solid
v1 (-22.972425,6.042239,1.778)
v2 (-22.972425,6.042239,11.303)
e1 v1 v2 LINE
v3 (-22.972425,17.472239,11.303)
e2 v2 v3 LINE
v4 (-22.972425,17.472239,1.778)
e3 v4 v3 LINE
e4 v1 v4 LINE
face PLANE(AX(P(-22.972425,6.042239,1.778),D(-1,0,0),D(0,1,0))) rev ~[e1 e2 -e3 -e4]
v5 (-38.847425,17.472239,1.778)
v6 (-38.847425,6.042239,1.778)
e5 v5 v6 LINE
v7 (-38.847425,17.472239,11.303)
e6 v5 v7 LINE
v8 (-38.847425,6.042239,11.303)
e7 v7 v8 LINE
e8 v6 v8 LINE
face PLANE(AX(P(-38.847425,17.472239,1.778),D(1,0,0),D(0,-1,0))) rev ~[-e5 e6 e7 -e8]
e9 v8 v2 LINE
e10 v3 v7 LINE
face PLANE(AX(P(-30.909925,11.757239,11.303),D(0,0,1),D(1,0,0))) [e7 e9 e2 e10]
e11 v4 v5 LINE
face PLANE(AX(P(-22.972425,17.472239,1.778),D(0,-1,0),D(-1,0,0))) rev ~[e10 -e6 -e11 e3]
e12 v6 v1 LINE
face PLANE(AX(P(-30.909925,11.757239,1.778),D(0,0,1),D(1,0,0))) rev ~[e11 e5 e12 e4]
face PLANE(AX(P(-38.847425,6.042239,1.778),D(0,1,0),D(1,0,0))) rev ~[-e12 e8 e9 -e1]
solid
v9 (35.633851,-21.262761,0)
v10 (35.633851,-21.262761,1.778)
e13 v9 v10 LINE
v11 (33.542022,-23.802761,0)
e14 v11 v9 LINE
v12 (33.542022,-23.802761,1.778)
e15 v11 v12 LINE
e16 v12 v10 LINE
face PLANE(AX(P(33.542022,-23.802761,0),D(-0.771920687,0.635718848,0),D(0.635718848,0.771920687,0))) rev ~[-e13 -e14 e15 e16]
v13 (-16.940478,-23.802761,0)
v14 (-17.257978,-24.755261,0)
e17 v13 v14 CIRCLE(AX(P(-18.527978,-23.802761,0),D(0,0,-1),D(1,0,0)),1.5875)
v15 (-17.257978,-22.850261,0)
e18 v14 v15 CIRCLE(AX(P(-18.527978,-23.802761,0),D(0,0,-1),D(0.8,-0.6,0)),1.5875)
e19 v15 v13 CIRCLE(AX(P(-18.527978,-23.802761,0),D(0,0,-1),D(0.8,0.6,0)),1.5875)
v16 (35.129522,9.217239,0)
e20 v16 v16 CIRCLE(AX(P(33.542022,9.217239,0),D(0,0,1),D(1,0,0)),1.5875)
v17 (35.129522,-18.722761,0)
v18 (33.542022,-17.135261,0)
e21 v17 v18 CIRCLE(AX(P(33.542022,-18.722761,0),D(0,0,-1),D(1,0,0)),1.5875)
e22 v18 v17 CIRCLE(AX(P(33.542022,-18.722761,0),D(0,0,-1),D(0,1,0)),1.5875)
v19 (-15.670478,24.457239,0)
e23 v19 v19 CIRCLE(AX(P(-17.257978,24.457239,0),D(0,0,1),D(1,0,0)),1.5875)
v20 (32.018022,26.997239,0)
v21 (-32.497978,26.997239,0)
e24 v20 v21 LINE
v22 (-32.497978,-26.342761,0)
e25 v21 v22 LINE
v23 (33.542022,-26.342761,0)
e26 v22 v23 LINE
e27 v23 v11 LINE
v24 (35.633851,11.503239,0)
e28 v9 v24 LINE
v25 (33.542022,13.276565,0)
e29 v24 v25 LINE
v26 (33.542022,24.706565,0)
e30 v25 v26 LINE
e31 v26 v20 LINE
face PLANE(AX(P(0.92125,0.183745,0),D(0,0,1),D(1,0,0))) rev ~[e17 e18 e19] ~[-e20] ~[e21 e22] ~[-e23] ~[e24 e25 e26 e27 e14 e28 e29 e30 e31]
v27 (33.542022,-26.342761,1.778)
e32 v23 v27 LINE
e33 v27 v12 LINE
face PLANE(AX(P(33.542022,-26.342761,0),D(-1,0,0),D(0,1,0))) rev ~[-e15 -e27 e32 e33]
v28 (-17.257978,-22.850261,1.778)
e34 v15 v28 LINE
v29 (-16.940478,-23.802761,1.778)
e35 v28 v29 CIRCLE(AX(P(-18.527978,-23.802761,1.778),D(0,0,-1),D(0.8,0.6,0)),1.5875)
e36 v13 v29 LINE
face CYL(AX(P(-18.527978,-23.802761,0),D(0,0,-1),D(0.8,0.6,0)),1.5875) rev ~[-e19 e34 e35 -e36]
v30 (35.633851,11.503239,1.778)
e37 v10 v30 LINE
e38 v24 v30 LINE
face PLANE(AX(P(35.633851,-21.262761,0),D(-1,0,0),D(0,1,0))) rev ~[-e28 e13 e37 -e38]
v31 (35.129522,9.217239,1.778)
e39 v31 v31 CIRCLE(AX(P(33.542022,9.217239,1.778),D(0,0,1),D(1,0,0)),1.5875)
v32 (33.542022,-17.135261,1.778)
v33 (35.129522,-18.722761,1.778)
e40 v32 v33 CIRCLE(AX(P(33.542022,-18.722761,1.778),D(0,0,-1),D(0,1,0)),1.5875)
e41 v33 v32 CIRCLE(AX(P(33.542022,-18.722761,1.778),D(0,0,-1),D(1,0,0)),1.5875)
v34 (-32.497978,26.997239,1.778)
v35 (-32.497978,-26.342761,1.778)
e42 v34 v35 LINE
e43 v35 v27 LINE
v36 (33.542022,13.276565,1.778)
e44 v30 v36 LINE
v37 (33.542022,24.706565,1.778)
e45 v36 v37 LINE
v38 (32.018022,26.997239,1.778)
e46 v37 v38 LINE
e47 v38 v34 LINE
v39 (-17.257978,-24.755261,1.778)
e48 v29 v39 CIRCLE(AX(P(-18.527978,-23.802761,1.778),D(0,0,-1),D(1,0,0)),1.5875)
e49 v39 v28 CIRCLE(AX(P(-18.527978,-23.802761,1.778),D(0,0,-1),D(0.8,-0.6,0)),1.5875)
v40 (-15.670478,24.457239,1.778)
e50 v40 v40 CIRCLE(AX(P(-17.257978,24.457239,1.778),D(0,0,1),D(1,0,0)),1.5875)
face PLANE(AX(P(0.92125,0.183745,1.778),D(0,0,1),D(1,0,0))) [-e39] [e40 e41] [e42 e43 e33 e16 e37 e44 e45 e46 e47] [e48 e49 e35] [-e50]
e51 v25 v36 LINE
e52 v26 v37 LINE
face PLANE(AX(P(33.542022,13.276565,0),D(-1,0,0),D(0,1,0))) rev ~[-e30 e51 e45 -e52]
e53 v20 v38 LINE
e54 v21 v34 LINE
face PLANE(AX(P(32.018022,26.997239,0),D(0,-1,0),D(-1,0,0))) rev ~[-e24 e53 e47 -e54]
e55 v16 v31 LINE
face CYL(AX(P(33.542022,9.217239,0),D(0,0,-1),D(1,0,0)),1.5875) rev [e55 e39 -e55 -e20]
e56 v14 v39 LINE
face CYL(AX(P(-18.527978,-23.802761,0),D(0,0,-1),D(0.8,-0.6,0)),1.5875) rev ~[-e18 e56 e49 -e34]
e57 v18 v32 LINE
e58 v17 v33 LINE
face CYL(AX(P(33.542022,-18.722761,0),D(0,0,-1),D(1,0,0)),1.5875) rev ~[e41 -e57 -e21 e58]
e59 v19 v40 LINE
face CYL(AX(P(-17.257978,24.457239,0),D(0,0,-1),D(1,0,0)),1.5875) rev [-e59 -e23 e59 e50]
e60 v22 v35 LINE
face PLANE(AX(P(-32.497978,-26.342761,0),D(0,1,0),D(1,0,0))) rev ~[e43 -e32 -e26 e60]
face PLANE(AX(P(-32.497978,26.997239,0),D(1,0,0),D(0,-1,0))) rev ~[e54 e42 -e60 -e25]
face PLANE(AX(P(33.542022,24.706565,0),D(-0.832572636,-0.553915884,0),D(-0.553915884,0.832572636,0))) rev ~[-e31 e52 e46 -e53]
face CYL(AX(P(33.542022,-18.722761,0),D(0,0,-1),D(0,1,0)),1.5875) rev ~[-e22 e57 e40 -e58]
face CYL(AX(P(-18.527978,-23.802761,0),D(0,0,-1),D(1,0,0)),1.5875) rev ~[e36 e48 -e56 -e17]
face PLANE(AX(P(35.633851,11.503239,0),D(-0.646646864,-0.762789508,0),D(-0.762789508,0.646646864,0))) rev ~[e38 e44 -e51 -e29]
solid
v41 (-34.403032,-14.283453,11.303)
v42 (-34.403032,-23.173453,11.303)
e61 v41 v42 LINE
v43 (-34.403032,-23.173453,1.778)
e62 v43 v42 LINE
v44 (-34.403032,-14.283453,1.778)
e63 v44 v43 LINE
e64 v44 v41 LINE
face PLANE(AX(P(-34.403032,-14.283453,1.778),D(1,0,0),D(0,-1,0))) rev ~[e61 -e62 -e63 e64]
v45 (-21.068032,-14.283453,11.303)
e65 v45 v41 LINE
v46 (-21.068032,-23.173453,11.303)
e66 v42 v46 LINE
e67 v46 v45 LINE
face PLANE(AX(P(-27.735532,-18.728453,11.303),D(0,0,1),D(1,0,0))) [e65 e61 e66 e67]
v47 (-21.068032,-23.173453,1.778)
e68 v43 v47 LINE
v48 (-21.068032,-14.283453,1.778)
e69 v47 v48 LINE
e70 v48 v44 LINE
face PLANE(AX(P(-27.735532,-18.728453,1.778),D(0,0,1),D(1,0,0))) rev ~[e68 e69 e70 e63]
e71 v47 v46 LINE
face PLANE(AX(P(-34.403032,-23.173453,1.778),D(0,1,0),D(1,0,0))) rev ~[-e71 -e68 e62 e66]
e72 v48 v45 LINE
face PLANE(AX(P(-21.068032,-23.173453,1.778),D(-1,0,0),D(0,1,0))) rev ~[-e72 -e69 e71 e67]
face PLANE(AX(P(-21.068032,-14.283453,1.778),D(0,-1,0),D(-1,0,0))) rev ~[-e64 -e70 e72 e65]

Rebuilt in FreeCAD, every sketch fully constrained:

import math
import FreeCAD as App
import Part
import Sketcher

V = App.Vector
Q = App.Units.Quantity

doc = App.newDocument("Part")
body = doc.addObject("PartDesign::Body", "Body")

sketch1 = body.newObject("Sketcher::SketchObject", "Sketch")
sketch1.AttachmentSupport = (doc.getObject("XY_Plane"), [""])
sketch1.MapMode = "FlatFace"
sketch1.addGeometry([
    Part.LineSegment(V(32, 27, 0), V(-32.5, 27, 0)),
    Part.LineSegment(V(-32.5, 27, 0), V(-32.5, -26.3, 0)),
    Part.LineSegment(V(-32.5, -26.3, 0), V(33.5, -26.3, 0)),
    Part.LineSegment(V(33.5, -26.3, 0), V(33.5, -23.8, 0)),
    Part.LineSegment(V(33.5, -23.8, 0), V(35.6, -21.3, 0)),
    Part.LineSegment(V(35.6, -21.3, 0), V(35.6, 11.5, 0)),
    Part.LineSegment(V(35.6, 11.5, 0), V(33.5, 13.3, 0)),
    Part.LineSegment(V(33.5, 13.3, 0), V(33.5, 24.7, 0)),
    Part.LineSegment(V(33.5, 24.7, 0), V(32, 27, 0)),
    Part.ArcOfCircle(Part.Circle(V(-18.5, -23.8, 0), V(0, 0, 1), 1.6), math.radians(0), math.radians(37)),
    Part.ArcOfCircle(Part.Circle(V(-18.5, -23.8, 0), V(0, 0, 1), 1.6), math.radians(-37), math.radians(0)),
    Part.ArcOfCircle(Part.Circle(V(-18.5, -23.8, 0), V(0, 0, 1), 1.6), math.radians(37), math.radians(323)),
    Part.ArcOfCircle(Part.Circle(V(33.5, -18.7, 0), V(0, 0, 1), 1.6), math.radians(90), math.radians(360)),
    Part.ArcOfCircle(Part.Circle(V(33.5, -18.7, 0), V(0, 0, 1), 1.6), math.radians(0), math.radians(90)),
    Part.Circle(V(-17.3, 24.5, 0), V(0, 0, 1), 1.6),
    Part.Circle(V(33.5, 9.2, 0), V(0, 0, 1), 1.6),
], False)
sketch1.addConstraint([
    Sketcher.Constraint("Coincident", 0, 2, 1, 1),
    Sketcher.Constraint("Coincident", 1, 2, 2, 1),
    Sketcher.Constraint("Coincident", 2, 2, 3, 1),
    Sketcher.Constraint("Coincident", 3, 2, 4, 1),
    Sketcher.Constraint("Coincident", 4, 2, 5, 1),
    Sketcher.Constraint("Coincident", 5, 2, 6, 1),
    Sketcher.Constraint("Coincident", 6, 2, 7, 1),
    Sketcher.Constraint("Coincident", 7, 2, 8, 1),
    Sketcher.Constraint("Coincident", 8, 2, 0, 1),
    Sketcher.Constraint("Tangent", 9, 1, 10, 2),
    Sketcher.Constraint("Tangent", 10, 1, 11, 2),
    Sketcher.Constraint("Tangent", 11, 1, 9, 2),
    Sketcher.Constraint("Tangent", 12, 1, 13, 2),
    Sketcher.Constraint("Coincident", 13, 1, 12, 2),
    Sketcher.Constraint("Horizontal", 0),
    Sketcher.Constraint("Vertical", 1),
    Sketcher.Constraint("Horizontal", 2),
    Sketcher.Constraint("Vertical", 3),
    Sketcher.Constraint("Vertical", 5),
    Sketcher.Constraint("Vertical", 7),
    Sketcher.Constraint("Equal", 11, 12),
    Sketcher.Constraint("Equal", 13, 14),
    Sketcher.Constraint("Equal", 14, 15),
    Sketcher.Constraint("Horizontal", 11, 3, 3, 2),
    Sketcher.Constraint("Horizontal", 3, 2, 9, 1),
    Sketcher.Constraint("Horizontal", 12, 3, 13, 1),
    Sketcher.Constraint("Vertical", 13, 3, 15, 3),
    Sketcher.Constraint("Vertical", 15, 3, 2, 2),
    Sketcher.Constraint("Vertical", 3, 2, 6, 2),
    Sketcher.Constraint("Vertical", 14, 3, 10, 1),
    Sketcher.Constraint("Vertical", 10, 1, 11, 1),
    Sketcher.Constraint("Vertical", 7, 2, 12, 1),
    Sketcher.Constraint("Diameter", 14, Q("0.125 in")),
    Sketcher.Constraint("DistanceX", 2, 1, 2, 2, Q("2.6 in")),
    Sketcher.Constraint("DistanceY", 1, 2, 1, 1, Q("2.1 in")),
    Sketcher.Constraint("DistanceY", 3, 1, 3, 2, Q("0.1 in")),
    Sketcher.Constraint("DistanceX", 14, 3, 12, 3, Q("2 in")),
    Sketcher.Constraint("DistanceY", 1, 2, 14, 3, Q("2 in")),
    Sketcher.Constraint("DistanceX", 0, 2, 0, 1, Q("2.54 in")),
    Sketcher.Constraint("DistanceY", 5, 1, 5, 2, Q("1.29 in")),
    Sketcher.Constraint("DistanceY", 7, 1, 7, 2, Q("0.45 in")),
    Sketcher.Constraint("DistanceY", 9, 3, 12, 3, Q("0.2 in")),
    Sketcher.Constraint("DistanceY", 12, 3, 15, 3, Q("1.1 in")),
    Sketcher.Constraint("DistanceY", 4, 2, 12, 3, Q("0.1 in")),
    Sketcher.Constraint("DistanceX", 9, 3, 12, 3, Q("2.05 in")),
    Sketcher.Constraint("Distance", 6, Q("2.742341 mm")),
    Sketcher.Constraint("Distance", 8, Q("2.75132 mm")),
    Sketcher.Constraint("DistanceY", 9, 3, -1, 1, Q("23.802761 mm")),
    Sketcher.Constraint("DistanceX", -1, 1, 4, 2, Q("35.633851 mm")),
])
pad1 = body.newObject("PartDesign::Pad", "Pad")
pad1.Profile = sketch1
pad1.Length = Q("0.07 in")
body2 = doc.addObject("PartDesign::Body", "Body001")

sketch2 = body2.newObject("Sketcher::SketchObject", "Sketch001")
sketch2.AttachmentSupport = (doc.getObject("XY_Plane001"), [""])
sketch2.MapMode = "FlatFace"
sketch2.AttachmentOffset = App.Placement(V(0, 0, 0.07 * 25.4), App.Rotation())
sketch2.addGeometry([
    Part.LineSegment(V(-39, 6, 0), V(-23, 6, 0)),
    Part.LineSegment(V(-23, 6, 0), V(-23, 17, 0)),
    Part.LineSegment(V(-23, 17, 0), V(-39, 17, 0)),
    Part.LineSegment(V(-39, 17, 0), V(-39, 6, 0)),
], False)
sketch2.addConstraint([
    Sketcher.Constraint("Coincident", 0, 2, 1, 1),
    Sketcher.Constraint("Coincident", 1, 2, 2, 1),
    Sketcher.Constraint("Coincident", 2, 2, 3, 1),
    Sketcher.Constraint("Coincident", 3, 2, 0, 1),
    Sketcher.Constraint("Horizontal", 0),
    Sketcher.Constraint("Vertical", 1),
    Sketcher.Constraint("Horizontal", 2),
    Sketcher.Constraint("Vertical", 3),
    Sketcher.Constraint("DistanceY", 1, 1, 1, 2, Q("0.45 in")),
    Sketcher.Constraint("DistanceX", 0, 1, 0, 2, Q("0.625 in")),
    Sketcher.Constraint("DistanceY", -1, 1, 0, 2, Q("6.042239 mm")),
    Sketcher.Constraint("DistanceX", 0, 2, -1, 1, Q("22.972425 mm")),
])
pad2 = body2.newObject("PartDesign::Pad", "Pad001")
pad2.Profile = sketch2
pad2.Length = Q("0.375 in")
body3 = doc.addObject("PartDesign::Body", "Body002")

sketch3 = body3.newObject("Sketcher::SketchObject", "Sketch002")
sketch3.AttachmentSupport = (doc.getObject("XY_Plane002"), [""])
sketch3.MapMode = "FlatFace"
sketch3.AttachmentOffset = App.Placement(V(0, 0, 0.07 * 25.4), App.Rotation())
sketch3.addGeometry([
    Part.LineSegment(V(-34, -23, 0), V(-21, -23, 0)),
    Part.LineSegment(V(-21, -23, 0), V(-21, -14, 0)),
    Part.LineSegment(V(-21, -14, 0), V(-34, -14, 0)),
    Part.LineSegment(V(-34, -14, 0), V(-34, -23, 0)),
], False)
sketch3.addConstraint([
    Sketcher.Constraint("Coincident", 0, 2, 1, 1),
    Sketcher.Constraint("Coincident", 1, 2, 2, 1),
    Sketcher.Constraint("Coincident", 2, 2, 3, 1),
    Sketcher.Constraint("Coincident", 3, 2, 0, 1),
    Sketcher.Constraint("Horizontal", 0),
    Sketcher.Constraint("Vertical", 1),
    Sketcher.Constraint("Horizontal", 2),
    Sketcher.Constraint("Vertical", 3),
    Sketcher.Constraint("DistanceY", 1, 1, 1, 2, Q("0.35 in")),
    Sketcher.Constraint("DistanceX", 0, 1, 0, 2, Q("0.525 in")),
    Sketcher.Constraint("DistanceX", 0, 2, -1, 1, Q("21.068032 mm")),
    Sketcher.Constraint("DistanceY", 0, 2, -1, 1, Q("23.173453 mm")),
])
pad3 = body3.newObject("PartDesign::Pad", "Pad002")
pad3.Profile = sketch3
pad3.Length = Q("0.375 in")

doc.recompute()
